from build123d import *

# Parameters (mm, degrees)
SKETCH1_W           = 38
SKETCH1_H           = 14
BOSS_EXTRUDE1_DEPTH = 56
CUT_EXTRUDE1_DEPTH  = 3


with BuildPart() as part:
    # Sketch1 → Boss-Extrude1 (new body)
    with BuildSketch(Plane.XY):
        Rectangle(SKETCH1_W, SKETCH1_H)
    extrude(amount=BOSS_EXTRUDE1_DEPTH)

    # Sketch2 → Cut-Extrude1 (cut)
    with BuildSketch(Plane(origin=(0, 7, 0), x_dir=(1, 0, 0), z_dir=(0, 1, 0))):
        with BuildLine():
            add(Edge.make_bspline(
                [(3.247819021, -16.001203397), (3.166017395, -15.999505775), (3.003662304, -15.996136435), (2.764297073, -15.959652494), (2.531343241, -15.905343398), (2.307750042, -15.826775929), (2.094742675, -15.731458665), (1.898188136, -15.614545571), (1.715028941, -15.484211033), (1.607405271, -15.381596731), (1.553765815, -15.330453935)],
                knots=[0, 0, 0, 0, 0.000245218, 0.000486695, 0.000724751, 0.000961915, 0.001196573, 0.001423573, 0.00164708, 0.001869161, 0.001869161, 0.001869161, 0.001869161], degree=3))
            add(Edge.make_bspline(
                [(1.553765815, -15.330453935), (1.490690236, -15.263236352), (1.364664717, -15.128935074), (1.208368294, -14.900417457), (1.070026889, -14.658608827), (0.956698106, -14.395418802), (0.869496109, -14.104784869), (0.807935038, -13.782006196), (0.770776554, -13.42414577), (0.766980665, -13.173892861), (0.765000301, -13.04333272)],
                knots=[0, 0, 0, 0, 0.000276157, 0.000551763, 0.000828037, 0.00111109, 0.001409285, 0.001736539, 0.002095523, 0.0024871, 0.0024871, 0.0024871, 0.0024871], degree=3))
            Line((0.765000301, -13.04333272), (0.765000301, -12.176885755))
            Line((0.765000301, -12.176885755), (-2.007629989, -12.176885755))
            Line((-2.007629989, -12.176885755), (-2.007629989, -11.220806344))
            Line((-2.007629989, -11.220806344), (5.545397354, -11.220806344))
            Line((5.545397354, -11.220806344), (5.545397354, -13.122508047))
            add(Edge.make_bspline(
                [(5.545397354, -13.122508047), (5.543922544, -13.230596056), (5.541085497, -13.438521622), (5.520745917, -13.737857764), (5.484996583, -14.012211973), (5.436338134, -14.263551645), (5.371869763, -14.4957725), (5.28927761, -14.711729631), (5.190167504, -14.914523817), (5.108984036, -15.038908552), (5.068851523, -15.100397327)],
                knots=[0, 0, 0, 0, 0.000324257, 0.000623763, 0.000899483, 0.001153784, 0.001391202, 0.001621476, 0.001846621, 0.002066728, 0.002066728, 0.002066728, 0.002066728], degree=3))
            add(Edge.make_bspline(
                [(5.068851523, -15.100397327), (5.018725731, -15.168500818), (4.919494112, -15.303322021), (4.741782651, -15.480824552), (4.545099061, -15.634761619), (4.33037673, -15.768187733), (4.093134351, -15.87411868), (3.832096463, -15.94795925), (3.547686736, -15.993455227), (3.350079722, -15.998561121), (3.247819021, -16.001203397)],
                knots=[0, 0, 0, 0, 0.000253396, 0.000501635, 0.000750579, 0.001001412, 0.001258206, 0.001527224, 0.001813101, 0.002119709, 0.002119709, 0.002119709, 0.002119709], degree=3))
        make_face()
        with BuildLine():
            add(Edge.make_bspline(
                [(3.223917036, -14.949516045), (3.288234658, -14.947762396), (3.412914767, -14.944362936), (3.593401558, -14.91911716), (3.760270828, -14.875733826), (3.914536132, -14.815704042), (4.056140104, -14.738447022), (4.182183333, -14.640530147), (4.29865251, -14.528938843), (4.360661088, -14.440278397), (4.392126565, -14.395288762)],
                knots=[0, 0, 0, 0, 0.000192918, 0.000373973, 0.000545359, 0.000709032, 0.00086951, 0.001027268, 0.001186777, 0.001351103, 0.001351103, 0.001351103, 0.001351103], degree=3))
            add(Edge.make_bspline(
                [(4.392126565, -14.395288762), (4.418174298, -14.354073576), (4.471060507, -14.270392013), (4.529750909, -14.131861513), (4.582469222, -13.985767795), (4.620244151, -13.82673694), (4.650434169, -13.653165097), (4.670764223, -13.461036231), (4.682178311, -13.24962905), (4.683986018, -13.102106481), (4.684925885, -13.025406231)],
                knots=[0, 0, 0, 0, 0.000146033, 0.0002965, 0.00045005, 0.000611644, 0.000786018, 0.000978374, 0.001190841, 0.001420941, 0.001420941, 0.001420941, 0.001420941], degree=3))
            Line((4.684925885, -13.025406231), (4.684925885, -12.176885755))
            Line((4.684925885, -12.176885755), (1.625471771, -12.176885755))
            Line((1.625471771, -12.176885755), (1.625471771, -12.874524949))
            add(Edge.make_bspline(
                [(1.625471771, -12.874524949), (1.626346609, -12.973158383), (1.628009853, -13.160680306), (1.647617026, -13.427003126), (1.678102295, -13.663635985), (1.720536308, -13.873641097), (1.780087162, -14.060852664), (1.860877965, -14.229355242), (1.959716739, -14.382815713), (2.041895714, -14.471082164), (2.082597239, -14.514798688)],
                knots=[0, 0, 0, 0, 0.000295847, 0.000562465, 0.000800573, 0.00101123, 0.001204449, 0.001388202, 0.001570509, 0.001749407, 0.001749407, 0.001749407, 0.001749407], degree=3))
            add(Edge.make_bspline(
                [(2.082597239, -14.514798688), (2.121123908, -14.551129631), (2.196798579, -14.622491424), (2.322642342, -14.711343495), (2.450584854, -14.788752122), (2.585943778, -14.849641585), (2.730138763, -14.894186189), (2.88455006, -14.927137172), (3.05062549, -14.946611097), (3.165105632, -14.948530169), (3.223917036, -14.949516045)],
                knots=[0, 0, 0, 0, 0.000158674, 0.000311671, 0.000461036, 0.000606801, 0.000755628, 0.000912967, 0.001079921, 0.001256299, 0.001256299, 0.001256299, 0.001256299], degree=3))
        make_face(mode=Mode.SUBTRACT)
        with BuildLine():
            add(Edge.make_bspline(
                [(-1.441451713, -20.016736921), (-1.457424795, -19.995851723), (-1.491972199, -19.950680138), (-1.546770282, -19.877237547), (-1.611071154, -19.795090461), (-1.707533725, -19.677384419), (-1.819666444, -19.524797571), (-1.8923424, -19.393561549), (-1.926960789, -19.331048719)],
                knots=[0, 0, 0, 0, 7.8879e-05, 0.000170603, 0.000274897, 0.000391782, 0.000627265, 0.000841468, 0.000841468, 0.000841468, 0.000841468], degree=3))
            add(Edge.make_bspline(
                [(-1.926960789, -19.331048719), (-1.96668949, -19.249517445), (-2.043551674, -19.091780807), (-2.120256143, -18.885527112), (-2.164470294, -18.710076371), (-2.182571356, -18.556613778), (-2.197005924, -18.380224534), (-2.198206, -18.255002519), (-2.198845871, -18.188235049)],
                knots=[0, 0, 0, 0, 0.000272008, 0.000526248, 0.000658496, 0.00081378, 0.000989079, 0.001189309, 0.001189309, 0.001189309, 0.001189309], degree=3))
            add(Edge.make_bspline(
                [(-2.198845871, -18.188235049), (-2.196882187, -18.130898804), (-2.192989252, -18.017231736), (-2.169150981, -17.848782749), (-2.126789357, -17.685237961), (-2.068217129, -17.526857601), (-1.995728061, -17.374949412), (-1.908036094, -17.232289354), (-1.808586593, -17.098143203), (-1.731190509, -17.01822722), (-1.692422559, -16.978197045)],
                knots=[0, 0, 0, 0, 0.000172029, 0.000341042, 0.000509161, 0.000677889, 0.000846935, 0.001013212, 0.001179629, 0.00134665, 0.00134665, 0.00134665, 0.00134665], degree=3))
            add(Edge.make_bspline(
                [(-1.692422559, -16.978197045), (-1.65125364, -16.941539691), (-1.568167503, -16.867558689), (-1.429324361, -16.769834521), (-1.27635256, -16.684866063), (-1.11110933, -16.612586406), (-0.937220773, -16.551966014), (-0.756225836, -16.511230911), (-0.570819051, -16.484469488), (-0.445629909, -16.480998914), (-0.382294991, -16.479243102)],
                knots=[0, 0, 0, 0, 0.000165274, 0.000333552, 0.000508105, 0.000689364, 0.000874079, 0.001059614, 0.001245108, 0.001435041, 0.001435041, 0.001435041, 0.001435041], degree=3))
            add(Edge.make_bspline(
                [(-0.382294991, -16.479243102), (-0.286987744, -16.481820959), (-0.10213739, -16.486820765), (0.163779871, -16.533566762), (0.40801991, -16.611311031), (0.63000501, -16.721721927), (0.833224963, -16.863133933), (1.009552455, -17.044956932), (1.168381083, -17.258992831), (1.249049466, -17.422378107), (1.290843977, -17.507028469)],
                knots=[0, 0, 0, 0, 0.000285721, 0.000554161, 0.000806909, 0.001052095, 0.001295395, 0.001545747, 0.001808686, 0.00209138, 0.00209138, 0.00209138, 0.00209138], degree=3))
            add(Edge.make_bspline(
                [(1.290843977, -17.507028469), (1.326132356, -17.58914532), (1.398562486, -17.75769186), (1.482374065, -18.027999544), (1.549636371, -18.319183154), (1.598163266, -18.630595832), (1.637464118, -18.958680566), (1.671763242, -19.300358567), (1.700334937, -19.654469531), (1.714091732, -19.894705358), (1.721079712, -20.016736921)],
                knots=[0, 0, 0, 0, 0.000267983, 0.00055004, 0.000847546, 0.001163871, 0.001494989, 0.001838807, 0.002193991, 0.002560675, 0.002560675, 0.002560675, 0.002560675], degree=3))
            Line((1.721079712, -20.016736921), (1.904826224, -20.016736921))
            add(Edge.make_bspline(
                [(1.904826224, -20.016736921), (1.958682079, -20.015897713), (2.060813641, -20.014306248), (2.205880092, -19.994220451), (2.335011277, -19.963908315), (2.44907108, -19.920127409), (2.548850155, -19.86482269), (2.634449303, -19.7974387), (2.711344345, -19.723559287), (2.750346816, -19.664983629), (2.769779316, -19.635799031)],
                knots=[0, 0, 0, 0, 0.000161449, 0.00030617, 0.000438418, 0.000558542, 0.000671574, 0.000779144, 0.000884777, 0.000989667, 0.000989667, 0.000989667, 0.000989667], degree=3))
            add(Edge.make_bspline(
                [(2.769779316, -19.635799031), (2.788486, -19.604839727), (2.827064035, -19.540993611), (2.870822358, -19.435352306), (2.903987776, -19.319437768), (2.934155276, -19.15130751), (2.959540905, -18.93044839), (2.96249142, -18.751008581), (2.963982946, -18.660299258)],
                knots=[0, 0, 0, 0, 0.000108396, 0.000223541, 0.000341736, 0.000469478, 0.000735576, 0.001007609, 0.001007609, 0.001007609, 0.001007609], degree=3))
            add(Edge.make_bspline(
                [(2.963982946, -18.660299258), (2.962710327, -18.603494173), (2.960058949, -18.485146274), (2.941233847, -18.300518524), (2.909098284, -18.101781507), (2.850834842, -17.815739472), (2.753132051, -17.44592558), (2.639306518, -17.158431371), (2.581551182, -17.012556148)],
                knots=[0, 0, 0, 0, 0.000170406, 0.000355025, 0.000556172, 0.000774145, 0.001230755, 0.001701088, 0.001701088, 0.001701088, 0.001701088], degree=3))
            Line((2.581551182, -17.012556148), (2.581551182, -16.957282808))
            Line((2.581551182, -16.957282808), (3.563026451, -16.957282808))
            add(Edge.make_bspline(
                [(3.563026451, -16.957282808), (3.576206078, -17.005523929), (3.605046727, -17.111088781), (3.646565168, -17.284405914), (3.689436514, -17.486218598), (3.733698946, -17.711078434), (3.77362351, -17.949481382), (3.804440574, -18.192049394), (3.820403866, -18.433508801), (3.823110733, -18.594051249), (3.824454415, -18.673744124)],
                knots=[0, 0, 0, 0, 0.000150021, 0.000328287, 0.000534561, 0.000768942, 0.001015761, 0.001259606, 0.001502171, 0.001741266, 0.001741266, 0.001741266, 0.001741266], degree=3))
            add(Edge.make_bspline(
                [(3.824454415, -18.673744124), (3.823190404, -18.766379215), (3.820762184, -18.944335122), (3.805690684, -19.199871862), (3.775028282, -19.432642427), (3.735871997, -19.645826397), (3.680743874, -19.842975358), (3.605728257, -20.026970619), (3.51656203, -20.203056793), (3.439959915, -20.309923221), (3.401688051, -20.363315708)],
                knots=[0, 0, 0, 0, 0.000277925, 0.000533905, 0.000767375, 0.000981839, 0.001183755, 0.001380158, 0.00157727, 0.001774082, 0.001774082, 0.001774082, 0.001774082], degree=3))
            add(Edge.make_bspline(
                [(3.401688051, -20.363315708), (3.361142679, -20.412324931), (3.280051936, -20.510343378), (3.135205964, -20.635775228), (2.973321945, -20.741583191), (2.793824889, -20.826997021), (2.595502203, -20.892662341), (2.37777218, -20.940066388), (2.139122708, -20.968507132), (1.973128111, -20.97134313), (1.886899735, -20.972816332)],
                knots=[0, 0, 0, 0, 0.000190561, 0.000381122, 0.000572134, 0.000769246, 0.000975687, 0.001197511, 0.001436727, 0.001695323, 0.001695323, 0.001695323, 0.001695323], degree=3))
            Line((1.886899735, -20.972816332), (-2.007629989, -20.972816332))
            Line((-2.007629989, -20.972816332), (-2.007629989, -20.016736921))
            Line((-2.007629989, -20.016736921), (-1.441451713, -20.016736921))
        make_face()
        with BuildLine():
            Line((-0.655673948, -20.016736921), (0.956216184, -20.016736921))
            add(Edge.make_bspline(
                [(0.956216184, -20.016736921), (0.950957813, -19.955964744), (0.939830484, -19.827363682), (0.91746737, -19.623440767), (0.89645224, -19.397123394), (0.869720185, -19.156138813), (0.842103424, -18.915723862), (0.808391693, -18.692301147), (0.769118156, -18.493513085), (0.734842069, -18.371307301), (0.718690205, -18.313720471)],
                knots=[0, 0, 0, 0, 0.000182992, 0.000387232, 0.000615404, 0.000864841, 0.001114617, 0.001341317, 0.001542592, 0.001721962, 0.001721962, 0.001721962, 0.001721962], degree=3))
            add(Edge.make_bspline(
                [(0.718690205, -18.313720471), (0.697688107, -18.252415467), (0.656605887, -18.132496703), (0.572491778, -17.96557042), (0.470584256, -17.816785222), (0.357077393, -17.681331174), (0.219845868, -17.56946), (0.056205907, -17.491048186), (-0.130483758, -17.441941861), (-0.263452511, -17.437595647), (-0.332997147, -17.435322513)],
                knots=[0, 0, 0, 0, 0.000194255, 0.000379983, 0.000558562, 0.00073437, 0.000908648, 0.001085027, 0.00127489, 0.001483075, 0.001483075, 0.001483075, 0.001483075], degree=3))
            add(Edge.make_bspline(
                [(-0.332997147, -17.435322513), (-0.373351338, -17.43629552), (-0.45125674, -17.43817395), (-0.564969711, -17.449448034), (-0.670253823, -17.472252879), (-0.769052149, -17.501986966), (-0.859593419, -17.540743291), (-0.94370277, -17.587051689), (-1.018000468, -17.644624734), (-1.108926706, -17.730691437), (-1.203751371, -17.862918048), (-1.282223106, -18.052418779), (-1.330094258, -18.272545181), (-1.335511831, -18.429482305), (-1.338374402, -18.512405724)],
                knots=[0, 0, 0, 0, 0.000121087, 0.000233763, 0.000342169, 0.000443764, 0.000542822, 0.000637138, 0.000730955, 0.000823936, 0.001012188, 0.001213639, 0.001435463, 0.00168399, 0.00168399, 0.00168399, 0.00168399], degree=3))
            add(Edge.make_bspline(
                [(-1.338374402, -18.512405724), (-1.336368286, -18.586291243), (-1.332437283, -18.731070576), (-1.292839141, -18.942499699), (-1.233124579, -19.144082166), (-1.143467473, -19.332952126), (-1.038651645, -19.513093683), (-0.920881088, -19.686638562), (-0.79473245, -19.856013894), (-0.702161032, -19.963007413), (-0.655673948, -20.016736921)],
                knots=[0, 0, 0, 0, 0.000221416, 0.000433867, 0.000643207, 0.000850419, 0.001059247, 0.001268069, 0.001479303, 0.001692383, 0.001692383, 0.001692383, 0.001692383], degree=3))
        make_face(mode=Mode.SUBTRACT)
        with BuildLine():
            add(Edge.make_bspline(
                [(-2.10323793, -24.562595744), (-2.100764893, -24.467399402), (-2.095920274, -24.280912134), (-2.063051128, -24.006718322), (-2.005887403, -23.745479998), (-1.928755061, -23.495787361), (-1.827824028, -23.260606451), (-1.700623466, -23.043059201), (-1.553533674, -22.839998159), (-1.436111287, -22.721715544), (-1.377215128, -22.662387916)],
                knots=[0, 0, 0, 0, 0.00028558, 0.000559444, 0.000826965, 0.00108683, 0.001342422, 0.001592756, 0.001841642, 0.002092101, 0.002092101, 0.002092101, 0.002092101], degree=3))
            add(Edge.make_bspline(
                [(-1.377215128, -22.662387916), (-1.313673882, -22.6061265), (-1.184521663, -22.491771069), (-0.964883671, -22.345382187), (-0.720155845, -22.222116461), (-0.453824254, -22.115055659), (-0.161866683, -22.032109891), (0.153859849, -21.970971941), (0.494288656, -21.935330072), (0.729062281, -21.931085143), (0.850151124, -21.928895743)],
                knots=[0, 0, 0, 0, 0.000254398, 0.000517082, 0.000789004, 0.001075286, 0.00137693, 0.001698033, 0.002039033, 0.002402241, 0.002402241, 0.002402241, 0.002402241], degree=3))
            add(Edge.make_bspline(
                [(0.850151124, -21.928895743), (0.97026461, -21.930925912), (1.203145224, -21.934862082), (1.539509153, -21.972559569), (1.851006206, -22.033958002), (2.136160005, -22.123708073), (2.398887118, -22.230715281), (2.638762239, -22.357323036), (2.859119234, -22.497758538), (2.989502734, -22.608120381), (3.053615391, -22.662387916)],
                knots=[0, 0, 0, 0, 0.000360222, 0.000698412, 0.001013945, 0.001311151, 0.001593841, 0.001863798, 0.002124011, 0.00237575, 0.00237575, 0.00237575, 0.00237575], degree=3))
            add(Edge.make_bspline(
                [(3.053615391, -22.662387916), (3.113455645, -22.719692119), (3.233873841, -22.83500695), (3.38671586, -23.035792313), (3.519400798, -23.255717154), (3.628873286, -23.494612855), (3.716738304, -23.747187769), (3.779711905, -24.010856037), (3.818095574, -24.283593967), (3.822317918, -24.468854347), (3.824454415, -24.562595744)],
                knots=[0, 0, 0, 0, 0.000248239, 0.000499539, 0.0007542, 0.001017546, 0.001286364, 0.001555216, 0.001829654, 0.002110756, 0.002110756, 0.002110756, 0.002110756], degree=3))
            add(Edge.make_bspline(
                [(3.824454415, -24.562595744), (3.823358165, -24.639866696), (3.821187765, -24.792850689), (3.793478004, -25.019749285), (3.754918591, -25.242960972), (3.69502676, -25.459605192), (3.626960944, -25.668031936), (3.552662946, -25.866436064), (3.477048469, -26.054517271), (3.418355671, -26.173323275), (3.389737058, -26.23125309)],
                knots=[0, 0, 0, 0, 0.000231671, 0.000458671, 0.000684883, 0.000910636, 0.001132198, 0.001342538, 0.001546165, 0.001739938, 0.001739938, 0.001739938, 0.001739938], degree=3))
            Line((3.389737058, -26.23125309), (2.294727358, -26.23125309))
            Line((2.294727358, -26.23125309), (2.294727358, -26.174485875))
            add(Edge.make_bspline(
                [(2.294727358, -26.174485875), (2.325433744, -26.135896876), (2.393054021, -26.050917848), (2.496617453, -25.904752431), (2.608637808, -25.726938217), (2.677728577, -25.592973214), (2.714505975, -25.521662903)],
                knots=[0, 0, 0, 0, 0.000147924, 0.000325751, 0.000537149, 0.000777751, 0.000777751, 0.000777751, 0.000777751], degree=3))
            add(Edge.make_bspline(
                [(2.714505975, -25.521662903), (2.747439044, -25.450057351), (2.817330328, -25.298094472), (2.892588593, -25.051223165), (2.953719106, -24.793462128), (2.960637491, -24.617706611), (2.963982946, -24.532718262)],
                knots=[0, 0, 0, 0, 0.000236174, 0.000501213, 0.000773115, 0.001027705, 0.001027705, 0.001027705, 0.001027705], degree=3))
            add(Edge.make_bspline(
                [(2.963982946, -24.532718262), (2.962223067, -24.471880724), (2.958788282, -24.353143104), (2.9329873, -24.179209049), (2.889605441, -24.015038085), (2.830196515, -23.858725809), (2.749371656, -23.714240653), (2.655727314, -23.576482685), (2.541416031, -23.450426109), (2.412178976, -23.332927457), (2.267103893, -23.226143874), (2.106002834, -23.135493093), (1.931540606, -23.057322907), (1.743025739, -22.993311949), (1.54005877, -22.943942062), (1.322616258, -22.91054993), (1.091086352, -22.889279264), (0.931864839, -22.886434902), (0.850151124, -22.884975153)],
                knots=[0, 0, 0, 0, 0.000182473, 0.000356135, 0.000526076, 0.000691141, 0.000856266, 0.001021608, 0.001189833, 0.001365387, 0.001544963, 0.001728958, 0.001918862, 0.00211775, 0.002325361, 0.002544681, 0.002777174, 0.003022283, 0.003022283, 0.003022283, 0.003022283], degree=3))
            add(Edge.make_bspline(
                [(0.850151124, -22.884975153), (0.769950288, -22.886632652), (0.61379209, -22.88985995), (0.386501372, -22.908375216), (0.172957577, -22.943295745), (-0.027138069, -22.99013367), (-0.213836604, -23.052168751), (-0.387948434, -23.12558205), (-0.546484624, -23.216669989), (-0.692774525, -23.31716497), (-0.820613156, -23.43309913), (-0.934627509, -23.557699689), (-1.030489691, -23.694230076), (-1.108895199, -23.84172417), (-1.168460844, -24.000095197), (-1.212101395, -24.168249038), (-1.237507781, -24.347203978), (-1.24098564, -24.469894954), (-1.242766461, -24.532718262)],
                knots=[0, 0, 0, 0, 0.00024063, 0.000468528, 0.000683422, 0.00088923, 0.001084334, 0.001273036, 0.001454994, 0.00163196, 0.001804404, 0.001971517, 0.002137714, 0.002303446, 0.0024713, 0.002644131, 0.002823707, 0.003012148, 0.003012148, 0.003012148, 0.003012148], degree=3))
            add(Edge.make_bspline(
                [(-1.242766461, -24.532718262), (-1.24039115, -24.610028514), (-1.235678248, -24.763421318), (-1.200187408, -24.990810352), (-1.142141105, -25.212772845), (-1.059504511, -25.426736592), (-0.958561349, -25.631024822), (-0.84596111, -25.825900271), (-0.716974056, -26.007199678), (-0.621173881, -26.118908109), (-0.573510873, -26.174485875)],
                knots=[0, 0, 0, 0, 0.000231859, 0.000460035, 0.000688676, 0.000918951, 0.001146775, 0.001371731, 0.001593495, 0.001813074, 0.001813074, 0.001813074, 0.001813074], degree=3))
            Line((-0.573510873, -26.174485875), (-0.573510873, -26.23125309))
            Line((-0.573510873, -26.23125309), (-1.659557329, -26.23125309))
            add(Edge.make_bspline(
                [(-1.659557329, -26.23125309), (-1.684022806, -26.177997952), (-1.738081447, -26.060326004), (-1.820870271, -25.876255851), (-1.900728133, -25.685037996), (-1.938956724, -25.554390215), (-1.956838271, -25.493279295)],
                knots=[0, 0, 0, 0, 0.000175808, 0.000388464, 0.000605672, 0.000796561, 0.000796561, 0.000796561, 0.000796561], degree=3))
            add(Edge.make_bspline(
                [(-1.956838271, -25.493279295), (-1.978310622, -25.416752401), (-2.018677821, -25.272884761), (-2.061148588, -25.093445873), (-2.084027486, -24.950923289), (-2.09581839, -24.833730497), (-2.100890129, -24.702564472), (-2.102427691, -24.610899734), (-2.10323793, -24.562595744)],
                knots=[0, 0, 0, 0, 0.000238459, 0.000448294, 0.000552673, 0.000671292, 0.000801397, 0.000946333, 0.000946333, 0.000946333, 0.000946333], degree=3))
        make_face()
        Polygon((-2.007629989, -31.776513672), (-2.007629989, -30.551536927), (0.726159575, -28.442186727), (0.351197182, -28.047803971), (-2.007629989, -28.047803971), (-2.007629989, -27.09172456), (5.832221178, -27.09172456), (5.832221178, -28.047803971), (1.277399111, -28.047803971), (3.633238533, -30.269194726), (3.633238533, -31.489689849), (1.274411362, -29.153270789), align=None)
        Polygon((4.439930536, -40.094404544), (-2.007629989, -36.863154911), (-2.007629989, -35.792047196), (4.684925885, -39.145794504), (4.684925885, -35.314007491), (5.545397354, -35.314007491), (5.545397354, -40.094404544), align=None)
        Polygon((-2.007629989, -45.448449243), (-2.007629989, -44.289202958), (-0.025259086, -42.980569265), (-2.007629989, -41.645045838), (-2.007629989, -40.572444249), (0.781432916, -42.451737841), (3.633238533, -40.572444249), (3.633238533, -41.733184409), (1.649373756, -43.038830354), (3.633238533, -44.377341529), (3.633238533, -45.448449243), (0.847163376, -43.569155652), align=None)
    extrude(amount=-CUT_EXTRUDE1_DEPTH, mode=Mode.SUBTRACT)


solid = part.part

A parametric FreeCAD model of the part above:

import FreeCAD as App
import Part
import Sketcher
from FreeCAD import Vector


def add_polygon(sketch, points):
    """Adds a closed chain of lines whose ends are joined by coincident constraints."""
    first, n = sketch.GeometryCount, len(points)
    for a, b in zip(points, points[1:] + points[:1]):
        sketch.addGeometry(Part.LineSegment(App.Vector(*a, 0), App.Vector(*b, 0)), False)
    for i in range(n):
        sketch.addConstraint(Sketcher.Constraint("Coincident", first + i, 2, first + (i + 1) % n, 1))

doc = App.newDocument("Part")
params = doc.addObject("Spreadsheet::Sheet", "Params")
for row, (alias, value) in enumerate([
    ("sketch1_width", "38 mm"),
    ("sketch1_height", "14 mm"),
    ("pad1_length", "56 mm"),
    ("pocket1_length", "3 mm"),
], start=1):
    params.set(f"A{row}", alias)
    params.set(f"B{row}", "=" + value)
    params.setAlias(f"B{row}", alias)

body = doc.addObject("PartDesign::Body", "Body")

# Sketch on XY plane
sketch1 = doc.addObject("Sketcher::SketchObject", "Sketch")
body.addObject(sketch1)
sketch1.AttachmentSupport = (doc.XY_Plane, [""])
sketch1.MapMode = "FlatFace"
add_polygon(sketch1, [(-19, 7), (-19, -7), (19, -7), (19, 7)])  # lines 0-3
sketch1.addConstraint([
    Sketcher.Constraint("Vertical", 0),
    Sketcher.Constraint("Horizontal", 1),
    Sketcher.Constraint("Vertical", 2),
    Sketcher.Constraint("Horizontal", 3),
    Sketcher.Constraint("Symmetric", 0, 2, 2, 2, -1, 1),
    Sketcher.Constraint("DistanceX", 1, 1, 1, 2, 38.0),
    Sketcher.Constraint("DistanceY", 0, 2, 0, 1, 14.0),
])
sketch1.setExpression("Constraints[9]", "Params.sketch1_width")
sketch1.setExpression("Constraints[10]", "Params.sketch1_height")
pad1 = doc.addObject("PartDesign::Pad", "Pad")
body.addObject(pad1)
pad1.Profile = sketch1
pad1.setExpression("Length", "Params.pad1_length")

# Sketch on XZ plane
sketch2 = doc.addObject("Sketcher::SketchObject", "Sketch001")
body.addObject(sketch2)
sketch2.AttachmentSupport = (doc.XZ_Plane, [""])
sketch2.MapMode = "FlatFace"
sketch2.AttachmentOffset = App.Placement(Vector(0, 0, -7), App.Rotation())
sketch2.addGeometry(Part.BSplineCurve([Vector(3.247819, 16.001203, 0), Vector(3.166017, 15.999506, 0), Vector(3.003662, 15.996136, 0), Vector(2.764297, 15.959652, 0), Vector(2.531343, 15.905343, 0), Vector(2.30775, 15.826776, 0), Vector(2.094743, 15.731459, 0), Vector(1.898188, 15.614546, 0), Vector(1.715029, 15.484211, 0), Vector(1.607405, 15.381597, 0), Vector(1.553766, 15.330454, 0)], [4, 1, 1, 1, 1, 1, 1, 1, 4], [0, 0.000245218, 0.000486695, 0.000724751, 0.000961915, 0.001196573, 0.001423573, 0.00164708, 0.001869161], False, 3, [1, 1, 1, 1, 1, 1, 1, 1, 1, 1, 1], False), False)  # 0
sketch2.addGeometry(Part.BSplineCurve([Vector(5.068852, 15.100397, 0), Vector(5.018726, 15.168501, 0), Vector(4.919494, 15.303322, 0), Vector(4.741783, 15.480825, 0), Vector(4.545099, 15.634762, 0), Vector(4.330377, 15.768188, 0), Vector(4.093134, 15.874119, 0), Vector(3.832096, 15.947959, 0), Vector(3.547687, 15.993455, 0), Vector(3.35008, 15.998561, 0), Vector(3.247819, 16.001203, 0)], [4, 1, 1, 1, 1, 1, 1, 1, 4], [0, 0.000253396, 0.000501635, 0.000750579, 0.001001412, 0.001258206, 0.001527224, 0.001813101, 0.002119709], False, 3, [1, 1, 1, 1, 1, 1, 1, 1, 1, 1, 1], False), False)  # 1
sketch2.addGeometry(Part.BSplineCurve([Vector(5.545397, 13.122508, 0), Vector(5.543923, 13.230596, 0), Vector(5.541085, 13.438522, 0), Vector(5.520746, 13.737858, 0), Vector(5.484997, 14.012212, 0), Vector(5.436338, 14.263552, 0), Vector(5.37187, 14.495772, 0), Vector(5.289278, 14.71173, 0), Vector(5.190168, 14.914524, 0), Vector(5.108984, 15.038909, 0), Vector(5.068852, 15.100397, 0)], [4, 1, 1, 1, 1, 1, 1, 1, 4], [0, 0.000324257, 0.000623763, 0.000899483, 0.001153784, 0.001391202, 0.001621476, 0.001846621, 0.002066728], False, 3, [1, 1, 1, 1, 1, 1, 1, 1, 1, 1, 1], False), False)  # 2
sketch2.addGeometry(Part.LineSegment(Vector(5.545397, 13.122508, 0), Vector(5.545397, 11.220806, 0)), False)  # 3
sketch2.addGeometry(Part.LineSegment(Vector(5.545397, 11.220806, 0), Vector(-2.00763, 11.220806, 0)), False)  # 4
sketch2.addGeometry(Part.LineSegment(Vector(-2.00763, 11.220806, 0), Vector(-2.00763, 12.176886, 0)), False)  # 5
sketch2.addGeometry(Part.LineSegment(Vector(-2.00763, 12.176886, 0), Vector(0.765, 12.176886, 0)), False)  # 6
sketch2.addGeometry(Part.LineSegment(Vector(0.765, 12.176886, 0), Vector(0.765, 13.043333, 0)), False)  # 7
sketch2.addGeometry(Part.BSplineCurve([Vector(1.553766, 15.330454, 0), Vector(1.49069, 15.263236, 0), Vector(1.364665, 15.128935, 0), Vector(1.208368, 14.900417, 0), Vector(1.070027, 14.658609, 0), Vector(0.956698, 14.395419, 0), Vector(0.869496, 14.104785, 0), Vector(0.807935, 13.782006, 0), Vector(0.770777, 13.424146, 0), Vector(0.766981, 13.173893, 0), Vector(0.765, 13.043333, 0)], [4, 1, 1, 1, 1, 1, 1, 1, 4], [0, 0.000276157, 0.000551763, 0.000828037, 0.00111109, 0.001409285, 0.001736539, 0.002095523, 0.0024871], False, 3, [1, 1, 1, 1, 1, 1, 1, 1, 1, 1, 1], False), False)  # 8
sketch2.addGeometry(Part.BSplineCurve([Vector(2.082597, 14.514799, 0), Vector(2.121124, 14.55113, 0), Vector(2.196799, 14.622491, 0), Vector(2.322642, 14.711343, 0), Vector(2.450585, 14.788752, 0), Vector(2.585944, 14.849642, 0), Vector(2.730139, 14.894186, 0), Vector(2.88455, 14.927137, 0), Vector(3.050625, 14.946611, 0), Vector(3.165106, 14.94853, 0), Vector(3.223917, 14.949516, 0)], [4, 1, 1, 1, 1, 1, 1, 1, 4], [0, 0.000158674, 0.000311671, 0.000461036, 0.000606801, 0.000755628, 0.000912967, 0.001079921, 0.001256299], False, 3, [1, 1, 1, 1, 1, 1, 1, 1, 1, 1, 1], False), False)  # 9
sketch2.addGeometry(Part.BSplineCurve([Vector(1.625472, 12.874525, 0), Vector(1.626347, 12.973158, 0), Vector(1.62801, 13.16068, 0), Vector(1.647617, 13.427003, 0), Vector(1.678102, 13.663636, 0), Vector(1.720536, 13.873641, 0), Vector(1.780087, 14.060853, 0), Vector(1.860878, 14.229355, 0), Vector(1.959717, 14.382816, 0), Vector(2.041896, 14.471082, 0), Vector(2.082597, 14.514799, 0)], [4, 1, 1, 1, 1, 1, 1, 1, 4], [0, 0.000295847, 0.000562465, 0.000800573, 0.00101123, 0.001204449, 0.001388202, 0.001570509, 0.001749407], False, 3, [1, 1, 1, 1, 1, 1, 1, 1, 1, 1, 1], False), False)  # 10
sketch2.addGeometry(Part.LineSegment(Vector(1.625472, 12.874525, 0), Vector(1.625472, 12.176886, 0)), False)  # 11
sketch2.addGeometry(Part.LineSegment(Vector(1.625472, 12.176886, 0), Vector(4.684926, 12.176886, 0)), False)  # 12
sketch2.addGeometry(Part.LineSegment(Vector(4.684926, 12.176886, 0), Vector(4.684926, 13.025406, 0)), False)  # 13
sketch2.addGeometry(Part.BSplineCurve([Vector(4.392127, 14.395289, 0), Vector(4.418174, 14.354074, 0), Vector(4.471061, 14.270392, 0), Vector(4.529751, 14.131862, 0), Vector(4.582469, 13.985768, 0), Vector(4.620244, 13.826737, 0), Vector(4.650434, 13.653165, 0), Vector(4.670764, 13.461036, 0), Vector(4.682178, 13.249629, 0), Vector(4.683986, 13.102106, 0), Vector(4.684926, 13.025406, 0)], [4, 1, 1, 1, 1, 1, 1, 1, 4], [0, 0.000146033, 0.0002965, 0.00045005, 0.000611644, 0.000786018, 0.000978374, 0.001190841, 0.001420941], False, 3, [1, 1, 1, 1, 1, 1, 1, 1, 1, 1, 1], False), False)  # 14
sketch2.addGeometry(Part.BSplineCurve([Vector(3.223917, 14.949516, 0), Vector(3.288235, 14.947762, 0), Vector(3.412915, 14.944363, 0), Vector(3.593402, 14.919117, 0), Vector(3.760271, 14.875734, 0), Vector(3.914536, 14.815704, 0), Vector(4.05614, 14.738447, 0), Vector(4.182183, 14.64053, 0), Vector(4.298653, 14.528939, 0), Vector(4.360661, 14.440278, 0), Vector(4.392127, 14.395289, 0)], [4, 1, 1, 1, 1, 1, 1, 1, 4], [0, 0.000192918, 0.000373973, 0.000545359, 0.000709032, 0.00086951, 0.001027268, 0.001186777, 0.001351103], False, 3, [1, 1, 1, 1, 1, 1, 1, 1, 1, 1, 1], False), False)  # 15
sketch2.addGeometry(Part.BSplineCurve([Vector(-1.441452, 20.016737, 0), Vector(-1.457425, 19.995852, 0), Vector(-1.491972, 19.95068, 0), Vector(-1.54677, 19.877238, 0), Vector(-1.611071, 19.79509, 0), Vector(-1.707534, 19.677384, 0), Vector(-1.819666, 19.524798, 0), Vector(-1.892342, 19.393562, 0), Vector(-1.926961, 19.331049, 0)], [4, 1, 1, 1, 1, 1, 4], [0, 0.000078879, 0.000170603, 0.000274897, 0.000391782, 0.000627265, 0.000841468], False, 3, [1, 1, 1, 1, 1, 1, 1, 1, 1], False), False)  # 16
sketch2.addGeometry(Part.LineSegment(Vector(-1.441452, 20.016737, 0), Vector(-2.00763, 20.016737, 0)), False)  # 17
sketch2.addGeometry(Part.LineSegment(Vector(-2.00763, 20.016737, 0), Vector(-2.00763, 20.972816, 0)), False)  # 18
sketch2.addGeometry(Part.LineSegment(Vector(-2.00763, 20.972816, 0), Vector(1.8869, 20.972816, 0)), False)  # 19
sketch2.addGeometry(Part.BSplineCurve([Vector(3.401688, 20.363316, 0), Vector(3.361143, 20.412325, 0), Vector(3.280052, 20.510343, 0), Vector(3.135206, 20.635775, 0), Vector(2.973322, 20.741583, 0), Vector(2.793825, 20.826997, 0), Vector(2.595502, 20.892662, 0), Vector(2.377772, 20.940066, 0), Vector(2.139123, 20.968507, 0), Vector(1.973128, 20.971343, 0), Vector(1.8869, 20.972816, 0)], [4, 1, 1, 1, 1, 1, 1, 1, 4], [0, 0.000190561, 0.000381122, 0.000572134, 0.000769246, 0.000975687, 0.001197511, 0.001436727, 0.001695323], False, 3, [1, 1, 1, 1, 1, 1, 1, 1, 1, 1, 1], False), False)  # 20
sketch2.addGeometry(Part.BSplineCurve([Vector(3.824454, 18.673744, 0), Vector(3.82319, 18.766379, 0), Vector(3.820762, 18.944335, 0), Vector(3.805691, 19.199872, 0), Vector(3.775028, 19.432642, 0), Vector(3.735872, 19.645826, 0), Vector(3.680744, 19.842975, 0), Vector(3.605728, 20.026971, 0), Vector(3.516562, 20.203057, 0), Vector(3.43996, 20.309923, 0), Vector(3.401688, 20.363316, 0)], [4, 1, 1, 1, 1, 1, 1, 1, 4], [0, 0.000277925, 0.000533905, 0.000767375, 0.000981839, 0.001183755, 0.001380158, 0.00157727, 0.001774082], False, 3, [1, 1, 1, 1, 1, 1, 1, 1, 1, 1, 1], False), False)  # 21
sketch2.addGeometry(Part.BSplineCurve([Vector(3.563026, 16.957283, 0), Vector(3.576206, 17.005524, 0), Vector(3.605047, 17.111089, 0), Vector(3.646565, 17.284406, 0), Vector(3.689437, 17.486219, 0), Vector(3.733699, 17.711078, 0), Vector(3.773624, 17.949481, 0), Vector(3.804441, 18.192049, 0), Vector(3.820404, 18.433509, 0), Vector(3.823111, 18.594051, 0), Vector(3.824454, 18.673744, 0)], [4, 1, 1, 1, 1, 1, 1, 1, 4], [0, 0.000150021, 0.000328287, 0.000534561, 0.000768942, 0.001015761, 0.001259606, 0.001502171, 0.001741266], False, 3, [1, 1, 1, 1, 1, 1, 1, 1, 1, 1, 1], False), False)  # 22
sketch2.addGeometry(Part.LineSegment(Vector(3.563026, 16.957283, 0), Vector(2.581551, 16.957283, 0)), False)  # 23
sketch2.addGeometry(Part.LineSegment(Vector(2.581551, 16.957283, 0), Vector(2.581551, 17.012556, 0)), False)  # 24
sketch2.addGeometry(Part.BSplineCurve([Vector(2.963983, 18.660299, 0), Vector(2.96271, 18.603494, 0), Vector(2.960059, 18.485146, 0), Vector(2.941234, 18.300519, 0), Vector(2.909098, 18.101782, 0), Vector(2.850835, 17.815739, 0), Vector(2.753132, 17.445926, 0), Vector(2.639307, 17.158431, 0), Vector(2.581551, 17.012556, 0)], [4, 1, 1, 1, 1, 1, 4], [0, 0.000170406, 0.000355025, 0.000556172, 0.000774145, 0.001230755, 0.001701088], False, 3, [1, 1, 1, 1, 1, 1, 1, 1, 1], False), False)  # 25
sketch2.addGeometry(Part.BSplineCurve([Vector(2.769779, 19.635799, 0), Vector(2.788486, 19.60484, 0), Vector(2.827064, 19.540994, 0), Vector(2.870822, 19.435352, 0), Vector(2.903988, 19.319438, 0), Vector(2.934155, 19.151308, 0), Vector(2.959541, 18.930448, 0), Vector(2.962491, 18.751009, 0), Vector(2.963983, 18.660299, 0)], [4, 1, 1, 1, 1, 1, 4], [0, 0.000108396, 0.000223541, 0.000341736, 0.000469478, 0.000735576, 0.001007609], False, 3, [1, 1, 1, 1, 1, 1, 1, 1, 1], False), False)  # 26
sketch2.addGeometry(Part.BSplineCurve([Vector(1.904826, 20.016737, 0), Vector(1.958682, 20.015898, 0), Vector(2.060814, 20.014306, 0), Vector(2.20588, 19.99422, 0), Vector(2.335011, 19.963908, 0), Vector(2.449071, 19.920127, 0), Vector(2.54885, 19.864823, 0), Vector(2.634449, 19.797439, 0), Vector(2.711344, 19.723559, 0), Vector(2.750347, 19.664984, 0), Vector(2.769779, 19.635799, 0)], [4, 1, 1, 1, 1, 1, 1, 1, 4], [0, 0.000161449, 0.00030617, 0.000438418, 0.000558542, 0.000671574, 0.000779144, 0.000884777, 0.000989667], False, 3, [1, 1, 1, 1, 1, 1, 1, 1, 1, 1, 1], False), False)  # 27
sketch2.addGeometry(Part.LineSegment(Vector(1.904826, 20.016737, 0), Vector(1.72108, 20.016737, 0)), False)  # 28
sketch2.addGeometry(Part.BSplineCurve([Vector(1.290844, 17.507028, 0), Vector(1.326132, 17.589145, 0), Vector(1.398562, 17.757692, 0), Vector(1.482374, 18.028, 0), Vector(1.549636, 18.319183, 0), Vector(1.598163, 18.630596, 0), Vector(1.637464, 18.958681, 0), Vector(1.671763, 19.300359, 0), Vector(1.700335, 19.65447, 0), Vector(1.714092, 19.894705, 0), Vector(1.72108, 20.016737, 0)], [4, 1, 1, 1, 1, 1, 1, 1, 4], [0, 0.000267983, 0.00055004, 0.000847546, 0.001163871, 0.001494989, 0.001838807, 0.002193991, 0.002560675], False, 3, [1, 1, 1, 1, 1, 1, 1, 1, 1, 1, 1], False), False)  # 29
sketch2.addGeometry(Part.BSplineCurve([Vector(-0.382295, 16.479243, 0), Vector(-0.286988, 16.481821, 0), Vector(-0.102137, 16.486821, 0), Vector(0.16378, 16.533567, 0), Vector(0.40802, 16.611311, 0), Vector(0.630005, 16.721722, 0), Vector(0.833225, 16.863134, 0), Vector(1.009552, 17.044957, 0), Vector(1.168381, 17.258993, 0), Vector(1.249049, 17.422378, 0), Vector(1.290844, 17.507028, 0)], [4, 1, 1, 1, 1, 1, 1, 1, 4], [0, 0.000285721, 0.000554161, 0.000806909, 0.001052095, 0.001295395, 0.001545747, 0.001808686, 0.00209138], False, 3, [1, 1, 1, 1, 1, 1, 1, 1, 1, 1, 1], False), False)  # 30
sketch2.addGeometry(Part.BSplineCurve([Vector(-1.692423, 16.978197, 0), Vector(-1.651254, 16.94154, 0), Vector(-1.568168, 16.867559, 0), Vector(-1.429324, 16.769835, 0), Vector(-1.276353, 16.684866, 0), Vector(-1.111109, 16.612586, 0), Vector(-0.937221, 16.551966, 0), Vector(-0.756226, 16.511231, 0), Vector(-0.570819, 16.484469, 0), Vector(-0.44563, 16.480999, 0), Vector(-0.382295, 16.479243, 0)], [4, 1, 1, 1, 1, 1, 1, 1, 4], [0, 0.000165274, 0.000333552, 0.000508105, 0.000689364, 0.000874079, 0.001059614, 0.001245108, 0.001435041], False, 3, [1, 1, 1, 1, 1, 1, 1, 1, 1, 1, 1], False), False)  # 31
sketch2.addGeometry(Part.BSplineCurve([Vector(-2.198846, 18.188235, 0), Vector(-2.196882, 18.130899, 0), Vector(-2.192989, 18.017232, 0), Vector(-2.169151, 17.848783, 0), Vector(-2.126789, 17.685238, 0), Vector(-2.068217, 17.526858, 0), Vector(-1.995728, 17.374949, 0), Vector(-1.908036, 17.232289, 0), Vector(-1.808587, 17.098143, 0), Vector(-1.731191, 17.018227, 0), Vector(-1.692423, 16.978197, 0)], [4, 1, 1, 1, 1, 1, 1, 1, 4], [0, 0.000172029, 0.000341042, 0.000509161, 0.000677889, 0.000846935, 0.001013212, 0.001179629, 0.00134665], False, 3, [1, 1, 1, 1, 1, 1, 1, 1, 1, 1, 1], False), False)  # 32
sketch2.addGeometry(Part.BSplineCurve([Vector(-1.926961, 19.331049, 0), Vector(-1.966689, 19.249517, 0), Vector(-2.043552, 19.091781, 0), Vector(-2.120256, 18.885527, 0), Vector(-2.16447, 18.710076, 0), Vector(-2.182571, 18.556614, 0), Vector(-2.197006, 18.380225, 0), Vector(-2.198206, 18.255003, 0), Vector(-2.198846, 18.188235, 0)], [4, 1, 1, 1, 1, 1, 4], [0, 0.000272008, 0.000526248, 0.000658496, 0.00081378, 0.000989079, 0.001189309], False, 3, [1, 1, 1, 1, 1, 1, 1, 1, 1], False), False)  # 33
sketch2.addGeometry(Part.BSplineCurve([Vector(-1.338374, 18.512406, 0), Vector(-1.336368, 18.586291, 0), Vector(-1.332437, 18.731071, 0), Vector(-1.292839, 18.9425, 0), Vector(-1.233125, 19.144082, 0), Vector(-1.143467, 19.332952, 0), Vector(-1.038652, 19.513094, 0), Vector(-0.920881, 19.686639, 0), Vector(-0.794732, 19.856014, 0), Vector(-0.702161, 19.963007, 0), Vector(-0.655674, 20.016737, 0)], [4, 1, 1, 1, 1, 1, 1, 1, 4], [0, 0.000221416, 0.000433867, 0.000643207, 0.000850419, 0.001059247, 0.001268069, 0.001479303, 0.001692383], False, 3, [1, 1, 1, 1, 1, 1, 1, 1, 1, 1, 1], False), False)  # 34
sketch2.addGeometry(Part.BSplineCurve([Vector(-0.332997, 17.435323, 0), Vector(-0.373351, 17.436296, 0), Vector(-0.451257, 17.438174, 0), Vector(-0.56497, 17.449448, 0), Vector(-0.670254, 17.472253, 0), Vector(-0.769052, 17.501987, 0), Vector(-0.859593, 17.540743, 0), Vector(-0.943703, 17.587052, 0), Vector(-1.018, 17.644625, 0), Vector(-1.108927, 17.730691, 0), Vector(-1.203751, 17.862918, 0), Vector(-1.282223, 18.052419, 0), Vector(-1.330094, 18.272545, 0), Vector(-1.335512, 18.429482, 0), Vector(-1.338374, 18.512406, 0)], [4, 1, 1, 1, 1, 1, 1, 1, 1, 1, 1, 1, 4], [0, 0.000121087, 0.000233763, 0.000342169, 0.000443764, 0.000542822, 0.000637138, 0.000730955, 0.000823936, 0.001012188, 0.001213639, 0.001435463, 0.00168399], False, 3, [1, 1, 1, 1, 1, 1, 1, 1, 1, 1, 1, 1, 1, 1, 1], False), False)  # 35
sketch2.addGeometry(Part.BSplineCurve([Vector(0.71869, 18.31372, 0), Vector(0.697688, 18.252415, 0), Vector(0.656606, 18.132497, 0), Vector(0.572492, 17.96557, 0), Vector(0.470584, 17.816785, 0), Vector(0.357077, 17.681331, 0), Vector(0.219846, 17.56946, 0), Vector(0.056206, 17.491048, 0), Vector(-0.130484, 17.441942, 0), Vector(-0.263453, 17.437596, 0), Vector(-0.332997, 17.435323, 0)], [4, 1, 1, 1, 1, 1, 1, 1, 4], [0, 0.000194255, 0.000379983, 0.000558562, 0.00073437, 0.000908648, 0.001085027, 0.00127489, 0.001483075], False, 3, [1, 1, 1, 1, 1, 1, 1, 1, 1, 1, 1], False), False)  # 36
sketch2.addGeometry(Part.BSplineCurve([Vector(0.956216, 20.016737, 0), Vector(0.950958, 19.955965, 0), Vector(0.93983, 19.827364, 0), Vector(0.917467, 19.623441, 0), Vector(0.896452, 19.397123, 0), Vector(0.86972, 19.156139, 0), Vector(0.842103, 18.915724, 0), Vector(0.808392, 18.692301, 0), Vector(0.769118, 18.493513, 0), Vector(0.734842, 18.371307, 0), Vector(0.71869, 18.31372, 0)], [4, 1, 1, 1, 1, 1, 1, 1, 4], [0, 0.000182992, 0.000387232, 0.000615404, 0.000864841, 0.001114617, 0.001341317, 0.001542592, 0.001721962], False, 3, [1, 1, 1, 1, 1, 1, 1, 1, 1, 1, 1], False), False)  # 37
sketch2.addGeometry(Part.LineSegment(Vector(0.956216, 20.016737, 0), Vector(-0.655674, 20.016737, 0)), False)  # 38
sketch2.addGeometry(Part.BSplineCurve([Vector(-2.103238, 24.562596, 0), Vector(-2.100765, 24.467399, 0), Vector(-2.09592, 24.280912, 0), Vector(-2.063051, 24.006718, 0), Vector(-2.005887, 23.74548, 0), Vector(-1.928755, 23.495787, 0), Vector(-1.827824, 23.260606, 0), Vector(-1.700623, 23.043059, 0), Vector(-1.553534, 22.839998, 0), Vector(-1.436111, 22.721716, 0), Vector(-1.377215, 22.662388, 0)], [4, 1, 1, 1, 1, 1, 1, 1, 4], [0, 0.00028558, 0.000559444, 0.000826965, 0.00108683, 0.001342422, 0.001592756, 0.001841642, 0.002092101], False, 3, [1, 1, 1, 1, 1, 1, 1, 1, 1, 1, 1], False), False)  # 39
sketch2.addGeometry(Part.BSplineCurve([Vector(-1.956838, 25.493279, 0), Vector(-1.978311, 25.416752, 0), Vector(-2.018678, 25.272885, 0), Vector(-2.061149, 25.093446, 0), Vector(-2.084027, 24.950923, 0), Vector(-2.095818, 24.83373, 0), Vector(-2.10089, 24.702564, 0), Vector(-2.102428, 24.6109, 0), Vector(-2.103238, 24.562596, 0)], [4, 1, 1, 1, 1, 1, 4], [0, 0.000238459, 0.000448294, 0.000552673, 0.000671292, 0.000801397, 0.000946333], False, 3, [1, 1, 1, 1, 1, 1, 1, 1, 1], False), False)  # 40
sketch2.addGeometry(Part.BSplineCurve([Vector(-1.659557, 26.231253, 0), Vector(-1.684023, 26.177998, 0), Vector(-1.738081, 26.060326, 0), Vector(-1.82087, 25.876256, 0), Vector(-1.900728, 25.685038, 0), Vector(-1.938957, 25.55439, 0), Vector(-1.956838, 25.493279, 0)], [4, 1, 1, 1, 4], [0, 0.000175808, 0.000388464, 0.000605672, 0.000796561], False, 3, [1, 1, 1, 1, 1, 1, 1], False), False)  # 41
sketch2.addGeometry(Part.LineSegment(Vector(-1.659557, 26.231253, 0), Vector(-0.573511, 26.231253, 0)), False)  # 42
sketch2.addGeometry(Part.LineSegment(Vector(-0.573511, 26.231253, 0), Vector(-0.573511, 26.174486, 0)), False)  # 43
sketch2.addGeometry(Part.BSplineCurve([Vector(-1.242766, 24.532718, 0), Vector(-1.240391, 24.610029, 0), Vector(-1.235678, 24.763421, 0), Vector(-1.200187, 24.99081, 0), Vector(-1.142141, 25.212773, 0), Vector(-1.059505, 25.426737, 0), Vector(-0.958561, 25.631025, 0), Vector(-0.845961, 25.8259, 0), Vector(-0.716974, 26.0072, 0), Vector(-0.621174, 26.118908, 0), Vector(-0.573511, 26.174486, 0)], [4, 1, 1, 1, 1, 1, 1, 1, 4], [0, 0.000231859, 0.000460035, 0.000688676, 0.000918951, 0.001146775, 0.001371731, 0.001593495, 0.001813074], False, 3, [1, 1, 1, 1, 1, 1, 1, 1, 1, 1, 1], False), False)  # 44
sketch2.addGeometry(Part.BSplineCurve([Vector(0.850151, 22.884975, 0), Vector(0.76995, 22.886633, 0), Vector(0.613792, 22.88986, 0), Vector(0.386501, 22.908375, 0), Vector(0.172958, 22.943296, 0), Vector(-0.027138, 22.990134, 0), Vector(-0.213837, 23.052169, 0), Vector(-0.387948, 23.125582, 0), Vector(-0.546485, 23.21667, 0), Vector(-0.692775, 23.317165, 0), Vector(-0.820613, 23.433099, 0), Vector(-0.934628, 23.5577, 0), Vector(-1.03049, 23.69423, 0), Vector(-1.108895, 23.841724, 0), Vector(-1.168461, 24.000095, 0), Vector(-1.212101, 24.168249, 0), Vector(-1.237508, 24.347204, 0), Vector(-1.240986, 24.469895, 0), Vector(-1.242766, 24.532718, 0)], [4, 1, 1, 1, 1, 1, 1, 1, 1, 1, 1, 1, 1, 1, 1, 1, 4], [0, 0.00024063, 0.000468528, 0.000683422, 0.00088923, 0.001084334, 0.001273036, 0.001454994, 0.00163196, 0.001804404, 0.001971517, 0.002137714, 0.002303446, 0.0024713, 0.002644131, 0.002823707, 0.003012148], False, 3, [1, 1, 1, 1, 1, 1, 1, 1, 1, 1, 1, 1, 1, 1, 1, 1, 1, 1, 1], False), False)  # 45
sketch2.addGeometry(Part.BSplineCurve([Vector(2.963983, 24.532718, 0), Vector(2.962223, 24.471881, 0), Vector(2.958788, 24.353143, 0), Vector(2.932987, 24.179209, 0), Vector(2.889605, 24.015038, 0), Vector(2.830197, 23.858726, 0), Vector(2.749372, 23.714241, 0), Vector(2.655727, 23.576483, 0), Vector(2.541416, 23.450426, 0), Vector(2.412179, 23.332927, 0), Vector(2.267104, 23.226144, 0), Vector(2.106003, 23.135493, 0), Vector(1.931541, 23.057323, 0), Vector(1.743026, 22.993312, 0), Vector(1.540059, 22.943942, 0), Vector(1.322616, 22.91055, 0), Vector(1.091086, 22.889279, 0), Vector(0.931865, 22.886435, 0), Vector(0.850151, 22.884975, 0)], [4, 1, 1, 1, 1, 1, 1, 1, 1, 1, 1, 1, 1, 1, 1, 1, 4], [0, 0.000182473, 0.000356135, 0.000526076, 0.000691141, 0.000856266, 0.001021608, 0.001189833, 0.001365387, 0.001544963, 0.001728958, 0.001918862, 0.00211775, 0.002325361, 0.002544681, 0.002777174, 0.003022283], False, 3, [1, 1, 1, 1, 1, 1, 1, 1, 1, 1, 1, 1, 1, 1, 1, 1, 1, 1, 1], False), False)  # 46
sketch2.addGeometry(Part.BSplineCurve([Vector(2.714506, 25.521663, 0), Vector(2.747439, 25.450057, 0), Vector(2.81733, 25.298094, 0), Vector(2.892589, 25.051223, 0), Vector(2.953719, 24.793462, 0), Vector(2.960637, 24.617707, 0), Vector(2.963983, 24.532718, 0)], [4, 1, 1, 1, 4], [0, 0.000236174, 0.000501213, 0.000773115, 0.001027705], False, 3, [1, 1, 1, 1, 1, 1, 1], False), False)  # 47
sketch2.addGeometry(Part.BSplineCurve([Vector(2.294727, 26.174486, 0), Vector(2.325434, 26.135897, 0), Vector(2.393054, 26.050918, 0), Vector(2.496617, 25.904752, 0), Vector(2.608638, 25.726938, 0), Vector(2.677729, 25.592973, 0), Vector(2.714506, 25.521663, 0)], [4, 1, 1, 1, 4], [0, 0.000147924, 0.000325751, 0.000537149, 0.000777751], False, 3, [1, 1, 1, 1, 1, 1, 1], False), False)  # 48
sketch2.addGeometry(Part.LineSegment(Vector(2.294727, 26.174486, 0), Vector(2.294727, 26.231253, 0)), False)  # 49
sketch2.addGeometry(Part.LineSegment(Vector(2.294727, 26.231253, 0), Vector(3.389737, 26.231253, 0)), False)  # 50
sketch2.addGeometry(Part.BSplineCurve([Vector(3.824454, 24.562596, 0), Vector(3.823358, 24.639867, 0), Vector(3.821188, 24.792851, 0), Vector(3.793478, 25.019749, 0), Vector(3.754919, 25.242961, 0), Vector(3.695027, 25.459605, 0), Vector(3.626961, 25.668032, 0), Vector(3.552663, 25.866436, 0), Vector(3.477048, 26.054517, 0), Vector(3.418356, 26.173323, 0), Vector(3.389737, 26.231253, 0)], [4, 1, 1, 1, 1, 1, 1, 1, 4], [0, 0.000231671, 0.000458671, 0.000684883, 0.000910636, 0.001132198, 0.001342538, 0.001546165, 0.001739938], False, 3, [1, 1, 1, 1, 1, 1, 1, 1, 1, 1, 1], False), False)  # 51
sketch2.addGeometry(Part.BSplineCurve([Vector(3.053615, 22.662388, 0), Vector(3.113456, 22.719692, 0), Vector(3.233874, 22.835007, 0), Vector(3.386716, 23.035792, 0), Vector(3.519401, 23.255717, 0), Vector(3.628873, 23.494613, 0), Vector(3.716738, 23.747188, 0), Vector(3.779712, 24.010856, 0), Vector(3.818096, 24.283594, 0), Vector(3.822318, 24.468854, 0), Vector(3.824454, 24.562596, 0)], [4, 1, 1, 1, 1, 1, 1, 1, 4], [0, 0.000248239, 0.000499539, 0.0007542, 0.001017546, 0.001286364, 0.001555216, 0.001829654, 0.002110756], False, 3, [1, 1, 1, 1, 1, 1, 1, 1, 1, 1, 1], False), False)  # 52
sketch2.addGeometry(Part.BSplineCurve([Vector(0.850151, 21.928896, 0), Vector(0.970265, 21.930926, 0), Vector(1.203145, 21.934862, 0), Vector(1.539509, 21.97256, 0), Vector(1.851006, 22.033958, 0), Vector(2.13616, 22.123708, 0), Vector(2.398887, 22.230715, 0), Vector(2.638762, 22.357323, 0), Vector(2.859119, 22.497759, 0), Vector(2.989503, 22.60812, 0), Vector(3.053615, 22.662388, 0)], [4, 1, 1, 1, 1, 1, 1, 1, 4], [0, 0.000360222, 0.000698412, 0.001013945, 0.001311151, 0.001593841, 0.001863798, 0.002124011, 0.00237575], False, 3, [1, 1, 1, 1, 1, 1, 1, 1, 1, 1, 1], False), False)  # 53
sketch2.addGeometry(Part.BSplineCurve([Vector(-1.377215, 22.662388, 0), Vector(-1.313674, 22.606126, 0), Vector(-1.184522, 22.491771, 0), Vector(-0.964884, 22.345382, 0), Vector(-0.720156, 22.222116, 0), Vector(-0.453824, 22.115056, 0), Vector(-0.161867, 22.03211, 0), Vector(0.15386, 21.970972, 0), Vector(0.494289, 21.93533, 0), Vector(0.729062, 21.931085, 0), Vector(0.850151, 21.928896, 0)], [4, 1, 1, 1, 1, 1, 1, 1, 4], [0, 0.000254398, 0.000517082, 0.000789004, 0.001075286, 0.00137693, 0.001698033, 0.002039033, 0.002402241], False, 3, [1, 1, 1, 1, 1, 1, 1, 1, 1, 1, 1], False), False)  # 54
add_polygon(sketch2, [(-2.00763, 30.551537), (-2.00763, 31.776514), (1.274411, 29.153271), (3.633239, 31.48969), (3.633239, 30.269195), (1.277399, 28.047804), (5.832221, 28.047804), (5.832221, 27.091725), (-2.00763, 27.091725), (-2.00763, 28.047804), (0.351197, 28.047804), (0.72616, 28.442187)])  # lines 55-66
add_polygon(sketch2, [(-2.00763, 36.863155), (4.439931, 40.094405), (5.545397, 40.094405), (5.545397, 35.314007), (4.684926, 35.314007), (4.684926, 39.145795), (-2.00763, 35.792047)])  # lines 67-73
add_polygon(sketch2, [(-2.00763, 44.289203), (-2.00763, 45.448449), (0.847163, 43.569156), (3.633239, 45.448449), (3.633239, 44.377342), (1.649374, 43.03883), (3.633239, 41.733184), (3.633239, 40.572444), (0.781433, 42.451738), (-2.00763, 40.572444), (-2.00763, 41.645046), (-0.025259, 42.980569)])  # lines 74-85
sketch2.addConstraint([
    Sketcher.Constraint("Block", 0),
    Sketcher.Constraint("Block", 1),
    Sketcher.Constraint("Block", 2),
    Sketcher.Constraint("Block", 8),
    Sketcher.Constraint("Block", 9),
    Sketcher.Constraint("Block", 10),
    Sketcher.Constraint("Block", 14),
    Sketcher.Constraint("Block", 15),
    Sketcher.Constraint("Block", 16),
    Sketcher.Constraint("Block", 20),
    Sketcher.Constraint("Block", 21),
    Sketcher.Constraint("Block", 22),
    Sketcher.Constraint("Block", 25),
    Sketcher.Constraint("Block", 26),
    Sketcher.Constraint("Block", 27),
    Sketcher.Constraint("Block", 29),
    Sketcher.Constraint("Block", 30),
    Sketcher.Constraint("Block", 31),
    Sketcher.Constraint("Block", 32),
    Sketcher.Constraint("Block", 33),
    Sketcher.Constraint("Block", 34),
    Sketcher.Constraint("Block", 35),
    Sketcher.Constraint("Block", 36),
    Sketcher.Constraint("Block", 37),
    Sketcher.Constraint("Block", 39),
    Sketcher.Constraint("Block", 40),
    Sketcher.Constraint("Block", 41),
    Sketcher.Constraint("Block", 44),
    Sketcher.Constraint("Block", 45),
    Sketcher.Constraint("Block", 46),
    Sketcher.Constraint("Block", 47),
    Sketcher.Constraint("Block", 48),
    Sketcher.Constraint("Block", 51),
    Sketcher.Constraint("Block", 52),
    Sketcher.Constraint("Block", 53),
    Sketcher.Constraint("Block", 54),
    Sketcher.Constraint("Coincident", 2, 1, 3, 1),
    Sketcher.Constraint("Coincident", 3, 2, 4, 1),
    Sketcher.Constraint("Coincident", 4, 2, 5, 1),
    Sketcher.Constraint("Coincident", 5, 2, 6, 1),
    Sketcher.Constraint("Coincident", 6, 2, 7, 1),
    Sketcher.Constraint("Coincident", 7, 2, 8, 2),
    Sketcher.Constraint("Coincident", 10, 1, 11, 1),
    Sketcher.Constraint("Coincident", 11, 2, 12, 1),
    Sketcher.Constraint("Coincident", 12, 2, 13, 1),
    Sketcher.Constraint("Coincident", 13, 2, 14, 2),
    Sketcher.Constraint("Coincident", 16, 1, 17, 1),
    Sketcher.Constraint("Coincident", 17, 2, 18, 1),
    Sketcher.Constraint("Coincident", 18, 2, 19, 1),
    Sketcher.Constraint("Coincident", 19, 2, 20, 2),
    Sketcher.Constraint("Coincident", 22, 1, 23, 1),
    Sketcher.Constraint("Coincident", 23, 2, 24, 1),
    Sketcher.Constraint("Coincident", 24, 2, 25, 2),
    Sketcher.Constraint("Coincident", 27, 1, 28, 1),
    Sketcher.Constraint("Coincident", 28, 2, 29, 2),
    Sketcher.Constraint("Coincident", 37, 1, 38, 1),
    Sketcher.Constraint("Coincident", 38, 2, 34, 2),
    Sketcher.Constraint("Coincident", 41, 1, 42, 1),
    Sketcher.Constraint("Coincident", 42, 2, 43, 1),
    Sketcher.Constraint("Coincident", 43, 2, 44, 2),
    Sketcher.Constraint("Coincident", 48, 1, 49, 1),
    Sketcher.Constraint("Coincident", 49, 2, 50, 1),
    Sketcher.Constraint("Coincident", 50, 2, 51, 2),
    Sketcher.Constraint("Vertical", 3),
    Sketcher.Constraint("Horizontal", 4),
    Sketcher.Constraint("Vertical", 5),
    Sketcher.Constraint("Horizontal", 6),
    Sketcher.Constraint("Vertical", 7),
    Sketcher.Constraint("Vertical", 11),
    Sketcher.Constraint("Horizontal", 12),
    Sketcher.Constraint("Vertical", 13),
    Sketcher.Constraint("Horizontal", 17),
    Sketcher.Constraint("Vertical", 18),
    Sketcher.Constraint("Horizontal", 19),
    Sketcher.Constraint("Horizontal", 23),
    Sketcher.Constraint("Vertical", 24),
    Sketcher.Constraint("Horizontal", 42),
    Sketcher.Constraint("Vertical", 43),
    Sketcher.Constraint("Vertical", 49),
    Sketcher.Constraint("Horizontal", 50),
    Sketcher.Constraint("Vertical", 55),
    Sketcher.Constraint("Vertical", 58),
    Sketcher.Constraint("Horizontal", 60),
    Sketcher.Constraint("Vertical", 61),
    Sketcher.Constraint("Horizontal", 62),
    Sketcher.Constraint("Vertical", 63),
    Sketcher.Constraint("Horizontal", 64),
    Sketcher.Constraint("Horizontal", 68),
    Sketcher.Constraint("Vertical", 69),
    Sketcher.Constraint("Horizontal", 70),
    Sketcher.Constraint("Vertical", 71),
    Sketcher.Constraint("Vertical", 73),
    Sketcher.Constraint("Vertical", 74),
    Sketcher.Constraint("Vertical", 77),
    Sketcher.Constraint("Vertical", 80),
    Sketcher.Constraint("Vertical", 83),
    Sketcher.Constraint("DistanceY", 3, 2, 3, 1, 1.901702),
    Sketcher.Constraint("DistanceY", 83, 1, 83, 2, 1.072602),
    Sketcher.Constraint("DistanceY", 73, 2, 75, 2, 6.706001),
    Sketcher.Constraint("DistanceX", 6, 1, 6, 2, 2.77263),
    Sketcher.Constraint("DistanceX", 17, 2, 17, 1, 0.566178),
    Sketcher.Constraint("DistanceX", 62, 2, 62, 1, 7.839851),
    Sketcher.Constraint("DistanceX", 70, 2, 70, 1, 0.860471),
    Sketcher.Constraint("DistanceY", 5, 1, 5, 2, 0.956079),
    Sketcher.Constraint("DistanceY", 11, 2, 11, 1, 0.697639),
    Sketcher.Constraint("DistanceY", 61, 2, 61, 1, 0.956079),
    Sketcher.Constraint("DistanceY", 63, 1, 63, 2, 0.956079),
    Sketcher.Constraint("DistanceY", 80, 2, 80, 1, 1.16074),
    Sketcher.Constraint("DistanceX", -1, 1, 59, 2, 1.277399),
    Sketcher.Constraint("DistanceX", 50, 2, 57, 2, 0.243501),
    Sketcher.Constraint("DistanceX", 64, 2, 59, 2, 0.926202),
    Sketcher.Constraint("DistanceY", 43, 2, 65, 2, 2.267701),
    Sketcher.Constraint("Distance", 56, 4.201571),
    Sketcher.Constraint("Distance", 57, 3.320078),
    Sketcher.Constraint("Distance", 72, 7.485848),
    Sketcher.Constraint("Distance", 76, 3.360649),
    Sketcher.Constraint("Distance", 79, 2.374959),
    Sketcher.Constraint("Distance", 81, 3.415339),
    Sketcher.Constraint("DistanceX", 60, 1, 60, 2, 4.554822),
    Sketcher.Constraint("DistanceX", 68, 1, 68, 2, 1.105467),
    Sketcher.Constraint("DistanceY", 55, 1, 55, 2, 1.224977),
    Sketcher.Constraint("DistanceY", 58, 2, 58, 1, 1.220495),
    Sketcher.Constraint("DistanceY", 69, 2, 69, 1, 4.780397),
    Sketcher.Constraint("DistanceY", 71, 1, 71, 2, 3.831787),
    Sketcher.Constraint("DistanceY", 73, 1, 73, 2, 1.071108),
    Sketcher.Constraint("DistanceY", 74, 1, 74, 2, 1.159246),
    Sketcher.Constraint("DistanceY", 77, 2, 77, 1, 1.071108),
    Sketcher.Constraint("DistanceX", 55, 2, -1, 1, 2.00763),
    Sketcher.Constraint("DistanceX", -1, 1, 56, 2, 1.274411),
    Sketcher.Constraint("DistanceY", -1, 1, 56, 2, 29.153271),
    Sketcher.Constraint("DistanceX", -1, 1, 65, 2, 0.72616),
    Sketcher.Constraint("DistanceX", -1, 1, 67, 2, 4.439931),
    Sketcher.Constraint("DistanceX", 72, 2, -1, 1, 2.00763),
    Sketcher.Constraint("DistanceX", 74, 2, -1, 1, 2.00763),
    Sketcher.Constraint("DistanceY", -1, 1, 74, 2, 45.448449),
    Sketcher.Constraint("DistanceX", -1, 1, 76, 2, 3.633239),
    Sketcher.Constraint("DistanceY", -1, 1, 76, 2, 45.448449),
    Sketcher.Constraint("DistanceY", -1, 1, 78, 2, 43.03883),
    Sketcher.Constraint("DistanceX", -1, 1, 79, 2, 3.633239),
    Sketcher.Constraint("DistanceX", 82, 2, -1, 1, 2.00763),
    Sketcher.Constraint("DistanceX", 84, 2, -1, 1, 0.025259),
    Sketcher.Constraint("DistanceY", -1, 1, 84, 2, 42.980569),
    Sketcher.Constraint("DistanceY", 49, 2, 59, 2, 1.816551),
    Sketcher.Constraint("DistanceY", 58, 2, 67, 2, 9.82521),
    Sketcher.Constraint("DistanceX", 75, 2, 78, 2, 0.80221),
    Sketcher.Constraint("DistanceX", 81, 2, 78, 2, 0.867941),
    Sketcher.Constraint("DistanceY", 73, 2, 82, 2, 3.709289),
])
pocket1 = doc.addObject("PartDesign::Pocket", "Pocket")
body.addObject(pocket1)
pocket1.Profile = sketch2
pocket1.setExpression("Length", "Params.pocket1_length")
pocket1.Reversed = True

doc.recompute()
